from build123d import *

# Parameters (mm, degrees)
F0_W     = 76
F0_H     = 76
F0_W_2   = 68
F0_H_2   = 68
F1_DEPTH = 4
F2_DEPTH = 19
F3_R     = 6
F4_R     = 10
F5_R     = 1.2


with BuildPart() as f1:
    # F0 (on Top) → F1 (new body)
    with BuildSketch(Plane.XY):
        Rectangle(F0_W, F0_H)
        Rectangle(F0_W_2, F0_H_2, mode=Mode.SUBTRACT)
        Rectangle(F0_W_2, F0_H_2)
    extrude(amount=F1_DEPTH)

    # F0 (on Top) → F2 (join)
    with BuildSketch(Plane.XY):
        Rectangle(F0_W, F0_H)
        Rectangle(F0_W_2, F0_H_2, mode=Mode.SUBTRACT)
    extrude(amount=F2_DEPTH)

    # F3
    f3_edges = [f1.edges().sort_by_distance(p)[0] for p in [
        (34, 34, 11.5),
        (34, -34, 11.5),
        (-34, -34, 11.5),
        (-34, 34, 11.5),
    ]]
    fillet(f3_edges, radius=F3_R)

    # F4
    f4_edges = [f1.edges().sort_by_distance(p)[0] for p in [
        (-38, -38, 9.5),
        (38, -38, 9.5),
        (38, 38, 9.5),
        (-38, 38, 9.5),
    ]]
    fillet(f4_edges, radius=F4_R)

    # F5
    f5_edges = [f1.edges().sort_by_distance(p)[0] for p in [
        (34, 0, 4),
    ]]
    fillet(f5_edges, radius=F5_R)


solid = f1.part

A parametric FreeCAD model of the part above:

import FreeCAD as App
import Part
import Sketcher

V = App.Vector
Q = App.Units.Quantity


def edges_at(feature, points):
    """Names of the edges that pass closest to the given points."""
    edges = feature.Shape.Edges
    near = lambda p: min(range(len(edges)), key=lambda i: edges[i].distToShape(Part.Vertex(*p))[0])
    return sorted({f"Edge{near(p) + 1}" for p in points})

doc = App.newDocument("Part")
body = doc.addObject("PartDesign::Body", "Body")

# Sketch on XY plane
sketch1 = doc.addObject("Sketcher::SketchObject", "Sketch")
body.addObject(sketch1)
sketch1.AttachmentSupport = (doc.XY_Plane, [""])
sketch1.MapMode = "FlatFace"
sketch1.addGeometry(Part.LineSegment(V(-38, 38, 0), V(-38, -38, 0)), False)
sketch1.addGeometry(Part.LineSegment(V(-38, -38, 0), V(38, -38, 0)), False)
sketch1.addGeometry(Part.LineSegment(V(38, -38, 0), V(38, 38, 0)), False)
sketch1.addGeometry(Part.LineSegment(V(38, 38, 0), V(-38, 38, 0)), False)
sketch1.addConstraint(Sketcher.Constraint("Coincident", 0, 2, 1, 1))
sketch1.addConstraint(Sketcher.Constraint("Coincident", 1, 2, 2, 1))
sketch1.addConstraint(Sketcher.Constraint("Coincident", 2, 2, 3, 1))
sketch1.addConstraint(Sketcher.Constraint("Coincident", 3, 2, 0, 1))
sketch1.addConstraint(Sketcher.Constraint("Vertical", 0))
sketch1.addConstraint(Sketcher.Constraint("Horizontal", 1))
sketch1.addConstraint(Sketcher.Constraint("Vertical", 2))
sketch1.addConstraint(Sketcher.Constraint("Horizontal", 3))
sketch1.addConstraint(Sketcher.Constraint("Symmetric", 0, 2, 2, 2, -1, 1))
sketch1.addConstraint(Sketcher.Constraint("Equal", 3, 0))
sketch1.addConstraint(Sketcher.Constraint("DistanceX", 1, 1, 1, 2, Q("76 mm")))
pad1 = doc.addObject("PartDesign::Pad", "Pad")
body.addObject(pad1)
pad1.Profile = sketch1
pad1.Length = 4

# Sketch on XY plane
sketch2 = doc.addObject("Sketcher::SketchObject", "Sketch001")
body.addObject(sketch2)
sketch2.AttachmentSupport = (doc.XY_Plane, [""])
sketch2.MapMode = "FlatFace"
sketch2.addGeometry(Part.LineSegment(V(-38, 38, 0), V(-38, -38, 0)), False)
sketch2.addGeometry(Part.LineSegment(V(-38, -38, 0), V(38, -38, 0)), False)
sketch2.addGeometry(Part.LineSegment(V(38, -38, 0), V(38, 38, 0)), False)
sketch2.addGeometry(Part.LineSegment(V(38, 38, 0), V(-38, 38, 0)), False)
sketch2.addGeometry(Part.LineSegment(V(34, -34, 0), V(-34, -34, 0)), False)
sketch2.addGeometry(Part.LineSegment(V(-34, -34, 0), V(-34, 34, 0)), False)
sketch2.addGeometry(Part.LineSegment(V(-34, 34, 0), V(34, 34, 0)), False)
sketch2.addGeometry(Part.LineSegment(V(34, 34, 0), V(34, -34, 0)), False)
sketch2.addConstraint(Sketcher.Constraint("Coincident", 0, 2, 1, 1))
sketch2.addConstraint(Sketcher.Constraint("Coincident", 1, 2, 2, 1))
sketch2.addConstraint(Sketcher.Constraint("Coincident", 2, 2, 3, 1))
sketch2.addConstraint(Sketcher.Constraint("Coincident", 3, 2, 0, 1))
sketch2.addConstraint(Sketcher.Constraint("Coincident", 4, 2, 5, 1))
sketch2.addConstraint(Sketcher.Constraint("Coincident", 5, 2, 6, 1))
sketch2.addConstraint(Sketcher.Constraint("Coincident", 6, 2, 7, 1))
sketch2.addConstraint(Sketcher.Constraint("Coincident", 7, 2, 4, 1))
sketch2.addConstraint(Sketcher.Constraint("Vertical", 0))
sketch2.addConstraint(Sketcher.Constraint("Horizontal", 1))
sketch2.addConstraint(Sketcher.Constraint("Vertical", 2))
sketch2.addConstraint(Sketcher.Constraint("Horizontal", 3))
sketch2.addConstraint(Sketcher.Constraint("Horizontal", 4))
sketch2.addConstraint(Sketcher.Constraint("Vertical", 5))
sketch2.addConstraint(Sketcher.Constraint("Horizontal", 6))
sketch2.addConstraint(Sketcher.Constraint("Vertical", 7))
sketch2.addConstraint(Sketcher.Constraint("Symmetric", 0, 2, 2, 2, -1, 1))
sketch2.addConstraint(Sketcher.Constraint("Symmetric", 4, 2, 6, 2, -1, 1))
sketch2.addConstraint(Sketcher.Constraint("Equal", 3, 0))
sketch2.addConstraint(Sketcher.Constraint("Equal", 6, 5))
sketch2.addConstraint(Sketcher.Constraint("DistanceX", 1, 1, 1, 2, Q("76 mm")))
sketch2.addConstraint(Sketcher.Constraint("DistanceX", 4, 2, 4, 1, Q("68 mm")))
pad2 = doc.addObject("PartDesign::Pad", "Pad001")
body.addObject(pad2)
pad2.Profile = sketch2
pad2.Length = 19
doc.recompute()

fillet = doc.addObject("PartDesign::Fillet", "Fillet")
body.addObject(fillet)
fillet.Base = (pad2, edges_at(pad2, [
    (34, 34, 11.5),
    (34, -34, 11.5),
    (-34, -34, 11.5),
    (-34, 34, 11.5),
]))
fillet.Radius = 6
doc.recompute()

fillet2 = doc.addObject("PartDesign::Fillet", "Fillet001")
body.addObject(fillet2)
fillet2.Base = (fillet, edges_at(fillet, [
    (-38, -38, 9.5),
    (38, -38, 9.5),
    (38, 38, 9.5),
    (-38, 38, 9.5),
]))
fillet2.Radius = 10
doc.recompute()

fillet3 = doc.addObject("PartDesign::Fillet", "Fillet002")
body.addObject(fillet3)
fillet3.Base = (fillet2, edges_at(fillet2, [(34, 0, 4)]))
fillet3.Radius = 1.2

doc.recompute()
